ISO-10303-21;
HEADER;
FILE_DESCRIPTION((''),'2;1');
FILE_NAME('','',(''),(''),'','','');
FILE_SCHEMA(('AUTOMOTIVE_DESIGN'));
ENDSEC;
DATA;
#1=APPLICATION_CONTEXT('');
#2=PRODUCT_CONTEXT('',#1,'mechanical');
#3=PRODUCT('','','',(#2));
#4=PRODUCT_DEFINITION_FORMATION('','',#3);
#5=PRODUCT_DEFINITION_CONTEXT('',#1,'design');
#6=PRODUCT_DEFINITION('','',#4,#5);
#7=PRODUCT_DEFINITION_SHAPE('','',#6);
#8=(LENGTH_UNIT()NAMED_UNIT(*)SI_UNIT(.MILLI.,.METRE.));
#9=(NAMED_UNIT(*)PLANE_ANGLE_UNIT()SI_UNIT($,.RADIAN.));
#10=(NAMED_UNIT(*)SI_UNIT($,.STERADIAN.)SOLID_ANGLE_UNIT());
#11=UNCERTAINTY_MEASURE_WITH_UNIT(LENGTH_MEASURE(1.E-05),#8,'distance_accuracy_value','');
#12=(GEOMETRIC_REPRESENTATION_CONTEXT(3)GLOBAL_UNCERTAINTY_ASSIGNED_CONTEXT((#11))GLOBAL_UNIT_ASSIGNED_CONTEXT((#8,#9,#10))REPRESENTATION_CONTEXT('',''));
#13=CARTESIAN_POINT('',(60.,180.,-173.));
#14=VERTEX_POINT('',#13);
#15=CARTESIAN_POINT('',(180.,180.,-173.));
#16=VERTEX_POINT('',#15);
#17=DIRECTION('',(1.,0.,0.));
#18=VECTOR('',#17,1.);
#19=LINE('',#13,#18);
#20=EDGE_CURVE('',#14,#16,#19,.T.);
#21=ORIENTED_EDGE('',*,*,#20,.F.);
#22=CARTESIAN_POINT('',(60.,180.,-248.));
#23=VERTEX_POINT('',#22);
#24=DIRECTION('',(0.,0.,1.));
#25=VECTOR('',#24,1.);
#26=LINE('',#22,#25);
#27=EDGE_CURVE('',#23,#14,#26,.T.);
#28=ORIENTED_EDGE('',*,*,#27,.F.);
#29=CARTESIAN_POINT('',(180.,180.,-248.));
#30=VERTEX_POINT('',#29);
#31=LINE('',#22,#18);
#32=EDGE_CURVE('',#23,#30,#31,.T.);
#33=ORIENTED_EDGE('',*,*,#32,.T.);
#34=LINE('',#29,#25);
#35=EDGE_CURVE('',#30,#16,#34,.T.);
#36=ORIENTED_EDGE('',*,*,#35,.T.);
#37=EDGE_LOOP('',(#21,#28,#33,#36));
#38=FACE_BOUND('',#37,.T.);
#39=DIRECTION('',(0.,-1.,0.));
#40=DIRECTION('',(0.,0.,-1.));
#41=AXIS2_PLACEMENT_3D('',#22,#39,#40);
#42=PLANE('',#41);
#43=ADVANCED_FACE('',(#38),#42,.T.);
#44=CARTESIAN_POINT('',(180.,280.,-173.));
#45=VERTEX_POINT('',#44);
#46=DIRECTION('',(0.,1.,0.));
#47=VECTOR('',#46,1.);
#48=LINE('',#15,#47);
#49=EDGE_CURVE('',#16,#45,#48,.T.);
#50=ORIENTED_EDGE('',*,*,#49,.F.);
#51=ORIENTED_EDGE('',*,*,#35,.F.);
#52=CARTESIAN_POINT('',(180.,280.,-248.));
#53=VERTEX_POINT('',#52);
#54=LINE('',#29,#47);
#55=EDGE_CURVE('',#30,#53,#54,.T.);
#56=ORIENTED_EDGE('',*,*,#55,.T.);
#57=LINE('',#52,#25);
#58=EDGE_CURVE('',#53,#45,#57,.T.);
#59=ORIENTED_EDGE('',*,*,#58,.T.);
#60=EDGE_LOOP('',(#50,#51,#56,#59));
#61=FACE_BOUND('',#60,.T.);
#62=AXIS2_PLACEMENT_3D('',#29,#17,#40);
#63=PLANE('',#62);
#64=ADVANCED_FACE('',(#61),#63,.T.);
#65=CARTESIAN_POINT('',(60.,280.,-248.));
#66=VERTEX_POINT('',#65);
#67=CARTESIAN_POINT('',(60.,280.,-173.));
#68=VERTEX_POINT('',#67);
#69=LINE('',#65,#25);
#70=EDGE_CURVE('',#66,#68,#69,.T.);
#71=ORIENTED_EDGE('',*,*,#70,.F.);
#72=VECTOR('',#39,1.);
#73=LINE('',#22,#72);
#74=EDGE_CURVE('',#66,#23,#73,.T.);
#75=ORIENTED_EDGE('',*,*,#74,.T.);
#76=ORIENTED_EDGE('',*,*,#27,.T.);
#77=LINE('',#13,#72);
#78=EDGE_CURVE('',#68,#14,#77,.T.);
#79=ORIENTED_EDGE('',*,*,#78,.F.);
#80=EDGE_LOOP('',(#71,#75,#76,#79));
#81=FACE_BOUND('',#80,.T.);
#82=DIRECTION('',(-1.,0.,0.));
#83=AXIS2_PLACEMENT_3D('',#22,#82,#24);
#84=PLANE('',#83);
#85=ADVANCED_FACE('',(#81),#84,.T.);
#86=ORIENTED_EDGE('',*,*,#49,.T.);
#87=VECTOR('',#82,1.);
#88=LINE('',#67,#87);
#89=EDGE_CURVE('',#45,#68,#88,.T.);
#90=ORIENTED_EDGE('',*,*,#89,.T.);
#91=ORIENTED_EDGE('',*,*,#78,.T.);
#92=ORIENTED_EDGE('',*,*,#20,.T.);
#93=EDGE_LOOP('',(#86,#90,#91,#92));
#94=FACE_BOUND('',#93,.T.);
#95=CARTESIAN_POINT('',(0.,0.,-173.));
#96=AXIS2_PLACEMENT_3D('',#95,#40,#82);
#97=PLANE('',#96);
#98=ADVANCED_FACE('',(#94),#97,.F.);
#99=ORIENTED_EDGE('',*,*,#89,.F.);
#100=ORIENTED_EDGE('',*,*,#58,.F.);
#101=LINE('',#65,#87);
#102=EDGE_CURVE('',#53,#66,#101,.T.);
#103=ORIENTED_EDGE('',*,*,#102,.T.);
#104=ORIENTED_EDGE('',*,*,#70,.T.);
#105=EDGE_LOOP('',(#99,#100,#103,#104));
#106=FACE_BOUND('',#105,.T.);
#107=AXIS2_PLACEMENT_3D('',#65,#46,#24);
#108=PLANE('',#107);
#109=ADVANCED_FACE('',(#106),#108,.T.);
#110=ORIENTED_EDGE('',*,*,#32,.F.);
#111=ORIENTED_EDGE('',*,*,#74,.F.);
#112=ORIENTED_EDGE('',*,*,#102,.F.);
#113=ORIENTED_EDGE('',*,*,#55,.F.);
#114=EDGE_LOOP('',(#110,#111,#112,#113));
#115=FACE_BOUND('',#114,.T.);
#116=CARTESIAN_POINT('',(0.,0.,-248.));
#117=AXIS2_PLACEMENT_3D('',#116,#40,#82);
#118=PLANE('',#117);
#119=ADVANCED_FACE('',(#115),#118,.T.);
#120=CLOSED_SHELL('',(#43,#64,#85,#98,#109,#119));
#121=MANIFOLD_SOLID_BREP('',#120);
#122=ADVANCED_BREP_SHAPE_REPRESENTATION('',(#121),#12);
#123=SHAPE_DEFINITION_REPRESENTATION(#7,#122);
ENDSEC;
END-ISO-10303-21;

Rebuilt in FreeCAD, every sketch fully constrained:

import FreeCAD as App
import Part
import Sketcher
from FreeCAD import Vector


def add_polygon(sketch, points):
    """Adds a closed chain of lines whose ends are joined by coincident constraints."""
    first, n = sketch.GeometryCount, len(points)
    for a, b in zip(points, points[1:] + points[:1]):
        sketch.addGeometry(Part.LineSegment(App.Vector(*a, 0), App.Vector(*b, 0)), False)
    for i in range(n):
        sketch.addConstraint(Sketcher.Constraint("Coincident", first + i, 2, first + (i + 1) % n, 1))

doc = App.newDocument("Part")
body = doc.addObject("PartDesign::Body", "Body")

# Sketch on XY plane
sketch1 = body.newObject("Sketcher::SketchObject", "Sketch")
sketch1.AttachmentSupport = (doc.getObject("XY_Plane"), [""])
sketch1.MapMode = "FlatFace"
sketch1.AttachmentOffset = App.Placement(Vector(0, 0, -173), App.Rotation())
add_polygon(sketch1, [(60, 280), (60, 180), (180, 180), (180, 280)])  # lines 0-3
sketch1.addConstraint([
    Sketcher.Constraint("Vertical", 0),
    Sketcher.Constraint("Horizontal", 1),
    Sketcher.Constraint("Vertical", 2),
    Sketcher.Constraint("Horizontal", 3),
    Sketcher.Constraint("DistanceX", 1, 1, 1, 2, 120.0),
    Sketcher.Constraint("DistanceY", 0, 2, 0, 1, 100.0),
    Sketcher.Constraint("DistanceX", -1, 1, 0, 2, 60.0),
    Sketcher.Constraint("DistanceY", -1, 1, 0, 2, 180.0),
])
pad1 = body.newObject("PartDesign::Pad", "Pad")
pad1.Profile = sketch1
pad1.Length = 75
pad1.Reversed = True

doc.recompute()
